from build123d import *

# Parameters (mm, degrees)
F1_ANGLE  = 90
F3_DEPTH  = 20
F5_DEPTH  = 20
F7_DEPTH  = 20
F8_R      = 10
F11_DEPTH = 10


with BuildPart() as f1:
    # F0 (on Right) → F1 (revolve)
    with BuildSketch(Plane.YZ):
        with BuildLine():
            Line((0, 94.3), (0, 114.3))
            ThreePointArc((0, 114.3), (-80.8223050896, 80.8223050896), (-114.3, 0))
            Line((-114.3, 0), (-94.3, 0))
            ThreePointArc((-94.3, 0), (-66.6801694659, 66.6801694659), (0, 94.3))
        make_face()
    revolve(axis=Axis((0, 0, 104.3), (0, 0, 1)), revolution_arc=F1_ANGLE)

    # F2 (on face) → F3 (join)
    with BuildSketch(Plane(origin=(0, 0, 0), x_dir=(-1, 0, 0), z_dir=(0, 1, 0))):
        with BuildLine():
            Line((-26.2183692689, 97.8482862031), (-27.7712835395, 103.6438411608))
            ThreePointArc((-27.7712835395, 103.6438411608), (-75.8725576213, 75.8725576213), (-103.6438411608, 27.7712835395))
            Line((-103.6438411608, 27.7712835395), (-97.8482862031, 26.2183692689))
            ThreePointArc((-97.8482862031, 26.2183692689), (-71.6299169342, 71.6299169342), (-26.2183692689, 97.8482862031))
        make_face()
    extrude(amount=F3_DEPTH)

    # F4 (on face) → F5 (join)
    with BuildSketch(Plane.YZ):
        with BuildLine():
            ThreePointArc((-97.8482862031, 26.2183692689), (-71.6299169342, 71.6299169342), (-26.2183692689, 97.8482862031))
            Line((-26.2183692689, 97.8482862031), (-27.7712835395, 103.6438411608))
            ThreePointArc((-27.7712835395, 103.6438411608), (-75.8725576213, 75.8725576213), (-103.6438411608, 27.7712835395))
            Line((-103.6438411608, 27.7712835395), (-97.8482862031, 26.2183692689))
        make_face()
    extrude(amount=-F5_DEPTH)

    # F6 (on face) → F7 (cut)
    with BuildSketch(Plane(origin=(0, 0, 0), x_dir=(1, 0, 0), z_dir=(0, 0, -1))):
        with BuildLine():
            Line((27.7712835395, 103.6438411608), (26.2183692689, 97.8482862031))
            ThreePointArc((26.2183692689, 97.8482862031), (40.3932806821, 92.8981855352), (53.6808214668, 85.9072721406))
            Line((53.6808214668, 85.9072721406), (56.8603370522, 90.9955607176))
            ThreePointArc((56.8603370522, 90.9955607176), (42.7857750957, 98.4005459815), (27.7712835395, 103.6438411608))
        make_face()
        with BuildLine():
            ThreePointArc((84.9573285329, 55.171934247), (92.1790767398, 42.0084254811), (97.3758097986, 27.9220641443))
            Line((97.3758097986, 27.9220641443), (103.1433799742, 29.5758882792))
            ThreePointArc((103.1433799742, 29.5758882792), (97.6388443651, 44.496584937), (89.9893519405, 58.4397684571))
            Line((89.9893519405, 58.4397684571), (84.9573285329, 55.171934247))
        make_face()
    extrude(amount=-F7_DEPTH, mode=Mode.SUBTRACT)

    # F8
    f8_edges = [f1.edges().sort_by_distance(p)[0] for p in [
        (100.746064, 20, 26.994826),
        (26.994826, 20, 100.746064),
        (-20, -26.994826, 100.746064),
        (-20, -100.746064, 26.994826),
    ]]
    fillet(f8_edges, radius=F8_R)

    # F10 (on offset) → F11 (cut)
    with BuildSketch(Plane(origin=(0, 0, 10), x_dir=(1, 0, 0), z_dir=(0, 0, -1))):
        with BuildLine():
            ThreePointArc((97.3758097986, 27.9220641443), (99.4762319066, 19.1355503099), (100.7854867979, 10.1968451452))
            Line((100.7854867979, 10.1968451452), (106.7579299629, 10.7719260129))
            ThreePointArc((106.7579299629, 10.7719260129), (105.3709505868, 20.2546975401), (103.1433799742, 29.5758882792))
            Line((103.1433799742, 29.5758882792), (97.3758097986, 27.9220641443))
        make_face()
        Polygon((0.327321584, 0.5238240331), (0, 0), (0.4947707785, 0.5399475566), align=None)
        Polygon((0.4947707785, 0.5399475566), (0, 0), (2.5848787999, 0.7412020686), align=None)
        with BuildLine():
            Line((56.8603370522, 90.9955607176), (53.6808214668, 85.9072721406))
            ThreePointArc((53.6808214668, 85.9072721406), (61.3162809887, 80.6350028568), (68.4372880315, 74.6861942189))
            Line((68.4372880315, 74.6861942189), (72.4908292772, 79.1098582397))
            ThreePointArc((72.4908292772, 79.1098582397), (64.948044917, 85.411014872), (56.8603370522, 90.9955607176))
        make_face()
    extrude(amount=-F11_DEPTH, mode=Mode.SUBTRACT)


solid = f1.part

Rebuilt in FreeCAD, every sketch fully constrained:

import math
import FreeCAD as App
import Part
import Sketcher

V = App.Vector
Q = App.Units.Quantity


def edges_at(feature, points):
    """Names of the edges that pass closest to the given points."""
    edges = feature.Shape.Edges
    near = lambda p: min(range(len(edges)), key=lambda i: edges[i].distToShape(Part.Vertex(*p))[0])
    return sorted({f"Edge{near(p) + 1}" for p in points})


def add_polygon(sketch, points):
    """Adds a closed chain of lines whose ends are joined by coincident constraints."""
    first, n = sketch.GeometryCount, len(points)
    for a, b in zip(points, points[1:] + points[:1]):
        sketch.addGeometry(Part.LineSegment(App.Vector(*a, 0), App.Vector(*b, 0)), False)
    for i in range(n):
        sketch.addConstraint(Sketcher.Constraint("Coincident", first + i, 2, first + (i + 1) % n, 1))

doc = App.newDocument("Part")
body = doc.addObject("PartDesign::Body", "Body")

sketch1 = body.newObject("Sketcher::SketchObject", "Sketch")
sketch1.AttachmentSupport = (doc.getObject("YZ_Plane"), [""])
sketch1.MapMode = "FlatFace"
sketch1.addGeometry(Part.LineSegment(V(0, 94, 0), V(0, 114, 0)), False)
sketch1.addGeometry(Part.ArcOfCircle(Part.Circle(V(0, 0, 0), V(0, 0, 1), 114), math.radians(90), math.radians(180)), False)
sketch1.addGeometry(Part.LineSegment(V(-114, 0, 0), V(-94, 0, 0)), False)
sketch1.addGeometry(Part.ArcOfCircle(Part.Circle(V(0, 0, 0), V(0, 0, 1), 94), math.radians(90), math.radians(180)), False)
sketch1.addConstraint(Sketcher.Constraint("Coincident", 0, 2, 1, 1))
sketch1.addConstraint(Sketcher.Constraint("Coincident", 1, 2, 2, 1))
sketch1.addConstraint(Sketcher.Constraint("Coincident", 2, 2, 3, 2))
sketch1.addConstraint(Sketcher.Constraint("Coincident", 3, 1, 0, 1))
sketch1.addConstraint(Sketcher.Constraint("Vertical", 0))
sketch1.addConstraint(Sketcher.Constraint("Horizontal", 2))
sketch1.addConstraint(Sketcher.Constraint("Coincident", 1, 3, -1, 1))
sketch1.addConstraint(Sketcher.Constraint("Coincident", 3, 3, -1, 1))
sketch1.addConstraint(Sketcher.Constraint("PointOnObject", 0, 2, -2))
sketch1.addConstraint(Sketcher.Constraint("PointOnObject", 1, 2, -1))
sketch1.addConstraint(Sketcher.Constraint("Radius", 1, Q("114.3 mm")))
sketch1.addConstraint(Sketcher.Constraint("Radius", 3, Q("94.3 mm")))
revolution = body.newObject("PartDesign::Revolution", "Revolution")
revolution.Profile = sketch1
revolution.ReferenceAxis = (sketch1, ["V_Axis"])
revolution.Angle = 90

sketch2 = body.newObject("Sketcher::SketchObject", "Sketch001")
sketch2.AttachmentSupport = (doc.getObject("XZ_Plane"), [""])
sketch2.MapMode = "FlatFace"
sketch2.addGeometry(Part.LineSegment(V(26, 98, 0), V(28, 104, 0)), False)
sketch2.addGeometry(Part.ArcOfCircle(Part.Circle(V(0, 0, 0), V(0, 0, 1), 107), math.radians(15), math.radians(75)), False)
sketch2.addGeometry(Part.LineSegment(V(104, 28, 0), V(98, 26, 0)), False)
sketch2.addGeometry(Part.ArcOfCircle(Part.Circle(V(0, 0, 0), V(0, 0, 1), 101), math.radians(15), math.radians(75)), False)
sketch2.addConstraint(Sketcher.Constraint("Coincident", 0, 2, 1, 2))
sketch2.addConstraint(Sketcher.Constraint("Coincident", 1, 1, 2, 1))
sketch2.addConstraint(Sketcher.Constraint("Coincident", 2, 2, 3, 1))
sketch2.addConstraint(Sketcher.Constraint("Coincident", 3, 2, 0, 1))
sketch2.addConstraint(Sketcher.Constraint("Coincident", 1, 3, -1, 1))
sketch2.addConstraint(Sketcher.Constraint("Coincident", 3, 3, -1, 1))
sketch2.addConstraint(Sketcher.Constraint("Radius", 1, Q("107.3 mm")))
sketch2.addConstraint(Sketcher.Constraint("Radius", 3, Q("101.3 mm")))
sketch2.addConstraint(Sketcher.Constraint("Angle", 0, Q("75 deg")))
sketch2.addConstraint(Sketcher.Constraint("Angle", 2, Q("-165 deg")))
sketch2.addConstraint(Sketcher.Constraint("DistanceY", -1, 1, 0, 2, Q("103.643841 mm")))
sketch2.addConstraint(Sketcher.Constraint("DistanceX", -1, 1, 1, 1, Q("103.643841 mm")))
pad1 = body.newObject("PartDesign::Pad", "Pad")
pad1.Profile = sketch2
pad1.Length = 20
pad1.Reversed = True

sketch3 = body.newObject("Sketcher::SketchObject", "Sketch002")
sketch3.AttachmentSupport = (doc.getObject("YZ_Plane"), [""])
sketch3.MapMode = "FlatFace"
sketch3.addGeometry(Part.ArcOfCircle(Part.Circle(V(0, 0, 0), V(0, 0, 1), 101), math.radians(105), math.radians(165)), False)
sketch3.addGeometry(Part.LineSegment(V(-26, 98, 0), V(-28, 104, 0)), False)
sketch3.addGeometry(Part.ArcOfCircle(Part.Circle(V(0, 0, 0), V(0, 0, 1), 107), math.radians(105), math.radians(165)), False)
sketch3.addGeometry(Part.LineSegment(V(-104, 28, 0), V(-98, 26, 0)), False)
sketch3.addConstraint(Sketcher.Constraint("Coincident", 0, 1, 1, 1))
sketch3.addConstraint(Sketcher.Constraint("Coincident", 1, 2, 2, 1))
sketch3.addConstraint(Sketcher.Constraint("Coincident", 2, 2, 3, 1))
sketch3.addConstraint(Sketcher.Constraint("Coincident", 3, 2, 0, 2))
sketch3.addConstraint(Sketcher.Constraint("Coincident", 0, 3, -1, 1))
sketch3.addConstraint(Sketcher.Constraint("Coincident", 2, 3, -1, 1))
sketch3.addConstraint(Sketcher.Constraint("Radius", 0, Q("101.3 mm")))
sketch3.addConstraint(Sketcher.Constraint("Radius", 2, Q("107.3 mm")))
sketch3.addConstraint(Sketcher.Constraint("Angle", 1, Q("105 deg")))
sketch3.addConstraint(Sketcher.Constraint("Angle", 3, Q("-15 deg")))
sketch3.addConstraint(Sketcher.Constraint("DistanceX", 0, 1, -1, 1, Q("26.218369 mm")))
sketch3.addConstraint(Sketcher.Constraint("DistanceX", 2, 2, -1, 1, Q("103.643841 mm")))
pad2 = body.newObject("PartDesign::Pad", "Pad001")
pad2.Profile = sketch3
pad2.Length = 20
pad2.Reversed = True

sketch4 = body.newObject("Sketcher::SketchObject", "Sketch003")
sketch4.AttachmentSupport = (doc.getObject("XY_Plane"), [""])
sketch4.MapMode = "FlatFace"
sketch4.addGeometry(Part.LineSegment(V(28, -104, 0), V(26, -98, 0)), False)
sketch4.addGeometry(Part.ArcOfCircle(Part.Circle(V(0, 0, 0), V(0, 0, 1), 101), math.radians(-75), math.radians(-58)), False)
sketch4.addGeometry(Part.LineSegment(V(54, -86, 0), V(57, -91, 0)), False)
sketch4.addGeometry(Part.ArcOfCircle(Part.Circle(V(0, 0, 0), V(0, 0, 1), 107), math.radians(-75), math.radians(-58)), False)
sketch4.addGeometry(Part.ArcOfCircle(Part.Circle(V(0, 0, 0), V(0, 0, 1), 101), math.radians(-33), math.radians(-16)), False)
sketch4.addGeometry(Part.LineSegment(V(97, -28, 0), V(103, -30, 0)), False)
sketch4.addGeometry(Part.ArcOfCircle(Part.Circle(V(0, 0, 0), V(0, 0, 1), 107), math.radians(-33), math.radians(-16)), False)
sketch4.addGeometry(Part.LineSegment(V(90, -58, 0), V(85, -55, 0)), False)
sketch4.addConstraint(Sketcher.Constraint("Coincident", 0, 2, 1, 1))
sketch4.addConstraint(Sketcher.Constraint("Coincident", 1, 2, 2, 1))
sketch4.addConstraint(Sketcher.Constraint("Coincident", 2, 2, 3, 2))
sketch4.addConstraint(Sketcher.Constraint("Coincident", 3, 1, 0, 1))
sketch4.addConstraint(Sketcher.Constraint("Coincident", 4, 2, 5, 1))
sketch4.addConstraint(Sketcher.Constraint("Coincident", 5, 2, 6, 2))
sketch4.addConstraint(Sketcher.Constraint("Coincident", 6, 1, 7, 1))
sketch4.addConstraint(Sketcher.Constraint("Coincident", 7, 2, 4, 1))
sketch4.addConstraint(Sketcher.Constraint("Coincident", 1, 3, -1, 1))
sketch4.addConstraint(Sketcher.Constraint("Coincident", 3, 3, -1, 1))
sketch4.addConstraint(Sketcher.Constraint("Coincident", 4, 3, -1, 1))
sketch4.addConstraint(Sketcher.Constraint("Coincident", 6, 3, -1, 1))
sketch4.addConstraint(Sketcher.Constraint("Equal", 1, 4))
sketch4.addConstraint(Sketcher.Constraint("Equal", 3, 6))
sketch4.addConstraint(Sketcher.Constraint("Radius", 1, Q("101.3 mm")))
sketch4.addConstraint(Sketcher.Constraint("Radius", 3, Q("107.3 mm")))
sketch4.addConstraint(Sketcher.Constraint("Angle", 0, Q("105 deg")))
sketch4.addConstraint(Sketcher.Constraint("Angle", 2, Q("-58 deg")))
sketch4.addConstraint(Sketcher.Constraint("Angle", 5, Q("-16 deg")))
sketch4.addConstraint(Sketcher.Constraint("Angle", 7, Q("147 deg")))
sketch4.addConstraint(Sketcher.Constraint("DistanceX", -1, 1, 0, 2, Q("26.218369 mm")))
sketch4.addConstraint(Sketcher.Constraint("DistanceX", -1, 1, 1, 2, Q("53.680821 mm")))
sketch4.addConstraint(Sketcher.Constraint("DistanceX", -1, 1, 4, 2, Q("97.37581 mm")))
sketch4.addConstraint(Sketcher.Constraint("DistanceX", -1, 1, 6, 1, Q("89.989352 mm")))
pocket1 = body.newObject("PartDesign::Pocket", "Pocket")
pocket1.Profile = sketch4
pocket1.Length = 20
pocket1.Reversed = True
doc.recompute()

fillet = body.newObject("PartDesign::Fillet", "Fillet")
fillet.Base = (pocket1, edges_at(pocket1, [
    (100.746, 20, 26.995),
    (26.995, 20, 100.746),
    (-20, -26.995, 100.746),
    (-20, -100.746, 26.995),
]))
fillet.Radius = 10

sketch5 = body.newObject("Sketcher::SketchObject", "Sketch004")
sketch5.AttachmentSupport = (doc.getObject("XY_Plane"), [""])
sketch5.MapMode = "FlatFace"
sketch5.AttachmentOffset = App.Placement(V(0, 0, 10), App.Rotation())
sketch5.addGeometry(Part.ArcOfCircle(Part.Circle(V(0, 0, 0), V(0, 0, 1), 101.3), math.radians(-16), math.radians(-5.78)), False)
sketch5.addGeometry(Part.LineSegment(V(100.79, -10.2, 0), V(106.76, -10.77, 0)), False)
sketch5.addGeometry(Part.ArcOfCircle(Part.Circle(V(0, 0, 0), V(0, 0, 1), 107.3), math.radians(-16), math.radians(-5.76)), False)
sketch5.addGeometry(Part.LineSegment(V(103.14, -29.58, 0), V(97.38, -27.92, 0)), False)
add_polygon(sketch5, [(0.33, -0.52), (0, 0), (2.58, -0.74), (0.49, -0.54)])
sketch5.addGeometry(Part.LineSegment(V(56.86, -91, 0), V(53.68, -85.91, 0)), False)
sketch5.addGeometry(Part.ArcOfCircle(Part.Circle(V(0, 0, 0), V(0, 0, 1), 101.3), math.radians(-58), math.radians(-47.5)), False)
sketch5.addGeometry(Part.LineSegment(V(68.44, -74.69, 0), V(72.49, -79.11, 0)), False)
sketch5.addGeometry(Part.ArcOfCircle(Part.Circle(V(0, 0, 0), V(0, 0, 1), 107.3), math.radians(-58), math.radians(-47.5)), False)
sketch5.addConstraint(Sketcher.Constraint("Coincident", 0, 2, 1, 1))
sketch5.addConstraint(Sketcher.Constraint("Coincident", 1, 2, 2, 2))
sketch5.addConstraint(Sketcher.Constraint("Coincident", 2, 1, 3, 1))
sketch5.addConstraint(Sketcher.Constraint("Coincident", 3, 2, 0, 1))
sketch5.addConstraint(Sketcher.Constraint("Coincident", 8, 2, 9, 1))
sketch5.addConstraint(Sketcher.Constraint("Coincident", 9, 2, 10, 1))
sketch5.addConstraint(Sketcher.Constraint("Coincident", 10, 2, 11, 2))
sketch5.addConstraint(Sketcher.Constraint("Coincident", 11, 1, 8, 1))
sketch5.addConstraint(Sketcher.Constraint("Coincident", 0, 3, -1, 1))
sketch5.addConstraint(Sketcher.Constraint("Coincident", 2, 3, -1, 1))
sketch5.addConstraint(Sketcher.Constraint("Coincident", 9, 3, -1, 1))
sketch5.addConstraint(Sketcher.Constraint("Coincident", 11, 3, -1, 1))
sketch5.addConstraint(Sketcher.Constraint("Coincident", 4, 2, -1, 1))
sketch5.addConstraint(Sketcher.Constraint("Equal", 0, 9))
sketch5.addConstraint(Sketcher.Constraint("Equal", 2, 11))
sketch5.addConstraint(Sketcher.Constraint("Parallel", 3, 5))
sketch5.addConstraint(Sketcher.Constraint("Parallel", 1, 6))
sketch5.addConstraint(Sketcher.Constraint("Parallel", 6, 7))
sketch5.addConstraint(Sketcher.Constraint("Parallel", 4, 8))
sketch5.addConstraint(Sketcher.Constraint("Radius", 0, Q("101.3 mm")))
sketch5.addConstraint(Sketcher.Constraint("Radius", 2, Q("107.3 mm")))
sketch5.addConstraint(Sketcher.Constraint("Angle", 3, Q("164 deg")))
sketch5.addConstraint(Sketcher.Constraint("Angle", 4, Q("122 deg")))
sketch5.addConstraint(Sketcher.Constraint("Angle", 1, Q("-5.5 deg")))
sketch5.addConstraint(Sketcher.Constraint("Angle", 10, Q("-47.5 deg")))
sketch5.addConstraint(Sketcher.Constraint("DistanceX", 9, 2, 0, 2, Q("32.348199 mm")))
sketch5.addConstraint(Sketcher.Constraint("Distance", 4, Q("0.617682 mm")))
sketch5.addConstraint(Sketcher.Constraint("DistanceX", -1, 1, 1, 2, Q("106.75793 mm")))
sketch5.addConstraint(Sketcher.Constraint("DistanceX", -1, 1, 2, 1, Q("103.14338 mm")))
sketch5.addConstraint(Sketcher.Constraint("DistanceX", -1, 1, 6, 2, Q("0.494771 mm")))
sketch5.addConstraint(Sketcher.Constraint("DistanceX", -1, 1, 8, 2, Q("53.680821 mm")))
pocket2 = body.newObject("PartDesign::Pocket", "Pocket001")
pocket2.Profile = sketch5
pocket2.Length = 10
pocket2.Reversed = True

doc.recompute()
